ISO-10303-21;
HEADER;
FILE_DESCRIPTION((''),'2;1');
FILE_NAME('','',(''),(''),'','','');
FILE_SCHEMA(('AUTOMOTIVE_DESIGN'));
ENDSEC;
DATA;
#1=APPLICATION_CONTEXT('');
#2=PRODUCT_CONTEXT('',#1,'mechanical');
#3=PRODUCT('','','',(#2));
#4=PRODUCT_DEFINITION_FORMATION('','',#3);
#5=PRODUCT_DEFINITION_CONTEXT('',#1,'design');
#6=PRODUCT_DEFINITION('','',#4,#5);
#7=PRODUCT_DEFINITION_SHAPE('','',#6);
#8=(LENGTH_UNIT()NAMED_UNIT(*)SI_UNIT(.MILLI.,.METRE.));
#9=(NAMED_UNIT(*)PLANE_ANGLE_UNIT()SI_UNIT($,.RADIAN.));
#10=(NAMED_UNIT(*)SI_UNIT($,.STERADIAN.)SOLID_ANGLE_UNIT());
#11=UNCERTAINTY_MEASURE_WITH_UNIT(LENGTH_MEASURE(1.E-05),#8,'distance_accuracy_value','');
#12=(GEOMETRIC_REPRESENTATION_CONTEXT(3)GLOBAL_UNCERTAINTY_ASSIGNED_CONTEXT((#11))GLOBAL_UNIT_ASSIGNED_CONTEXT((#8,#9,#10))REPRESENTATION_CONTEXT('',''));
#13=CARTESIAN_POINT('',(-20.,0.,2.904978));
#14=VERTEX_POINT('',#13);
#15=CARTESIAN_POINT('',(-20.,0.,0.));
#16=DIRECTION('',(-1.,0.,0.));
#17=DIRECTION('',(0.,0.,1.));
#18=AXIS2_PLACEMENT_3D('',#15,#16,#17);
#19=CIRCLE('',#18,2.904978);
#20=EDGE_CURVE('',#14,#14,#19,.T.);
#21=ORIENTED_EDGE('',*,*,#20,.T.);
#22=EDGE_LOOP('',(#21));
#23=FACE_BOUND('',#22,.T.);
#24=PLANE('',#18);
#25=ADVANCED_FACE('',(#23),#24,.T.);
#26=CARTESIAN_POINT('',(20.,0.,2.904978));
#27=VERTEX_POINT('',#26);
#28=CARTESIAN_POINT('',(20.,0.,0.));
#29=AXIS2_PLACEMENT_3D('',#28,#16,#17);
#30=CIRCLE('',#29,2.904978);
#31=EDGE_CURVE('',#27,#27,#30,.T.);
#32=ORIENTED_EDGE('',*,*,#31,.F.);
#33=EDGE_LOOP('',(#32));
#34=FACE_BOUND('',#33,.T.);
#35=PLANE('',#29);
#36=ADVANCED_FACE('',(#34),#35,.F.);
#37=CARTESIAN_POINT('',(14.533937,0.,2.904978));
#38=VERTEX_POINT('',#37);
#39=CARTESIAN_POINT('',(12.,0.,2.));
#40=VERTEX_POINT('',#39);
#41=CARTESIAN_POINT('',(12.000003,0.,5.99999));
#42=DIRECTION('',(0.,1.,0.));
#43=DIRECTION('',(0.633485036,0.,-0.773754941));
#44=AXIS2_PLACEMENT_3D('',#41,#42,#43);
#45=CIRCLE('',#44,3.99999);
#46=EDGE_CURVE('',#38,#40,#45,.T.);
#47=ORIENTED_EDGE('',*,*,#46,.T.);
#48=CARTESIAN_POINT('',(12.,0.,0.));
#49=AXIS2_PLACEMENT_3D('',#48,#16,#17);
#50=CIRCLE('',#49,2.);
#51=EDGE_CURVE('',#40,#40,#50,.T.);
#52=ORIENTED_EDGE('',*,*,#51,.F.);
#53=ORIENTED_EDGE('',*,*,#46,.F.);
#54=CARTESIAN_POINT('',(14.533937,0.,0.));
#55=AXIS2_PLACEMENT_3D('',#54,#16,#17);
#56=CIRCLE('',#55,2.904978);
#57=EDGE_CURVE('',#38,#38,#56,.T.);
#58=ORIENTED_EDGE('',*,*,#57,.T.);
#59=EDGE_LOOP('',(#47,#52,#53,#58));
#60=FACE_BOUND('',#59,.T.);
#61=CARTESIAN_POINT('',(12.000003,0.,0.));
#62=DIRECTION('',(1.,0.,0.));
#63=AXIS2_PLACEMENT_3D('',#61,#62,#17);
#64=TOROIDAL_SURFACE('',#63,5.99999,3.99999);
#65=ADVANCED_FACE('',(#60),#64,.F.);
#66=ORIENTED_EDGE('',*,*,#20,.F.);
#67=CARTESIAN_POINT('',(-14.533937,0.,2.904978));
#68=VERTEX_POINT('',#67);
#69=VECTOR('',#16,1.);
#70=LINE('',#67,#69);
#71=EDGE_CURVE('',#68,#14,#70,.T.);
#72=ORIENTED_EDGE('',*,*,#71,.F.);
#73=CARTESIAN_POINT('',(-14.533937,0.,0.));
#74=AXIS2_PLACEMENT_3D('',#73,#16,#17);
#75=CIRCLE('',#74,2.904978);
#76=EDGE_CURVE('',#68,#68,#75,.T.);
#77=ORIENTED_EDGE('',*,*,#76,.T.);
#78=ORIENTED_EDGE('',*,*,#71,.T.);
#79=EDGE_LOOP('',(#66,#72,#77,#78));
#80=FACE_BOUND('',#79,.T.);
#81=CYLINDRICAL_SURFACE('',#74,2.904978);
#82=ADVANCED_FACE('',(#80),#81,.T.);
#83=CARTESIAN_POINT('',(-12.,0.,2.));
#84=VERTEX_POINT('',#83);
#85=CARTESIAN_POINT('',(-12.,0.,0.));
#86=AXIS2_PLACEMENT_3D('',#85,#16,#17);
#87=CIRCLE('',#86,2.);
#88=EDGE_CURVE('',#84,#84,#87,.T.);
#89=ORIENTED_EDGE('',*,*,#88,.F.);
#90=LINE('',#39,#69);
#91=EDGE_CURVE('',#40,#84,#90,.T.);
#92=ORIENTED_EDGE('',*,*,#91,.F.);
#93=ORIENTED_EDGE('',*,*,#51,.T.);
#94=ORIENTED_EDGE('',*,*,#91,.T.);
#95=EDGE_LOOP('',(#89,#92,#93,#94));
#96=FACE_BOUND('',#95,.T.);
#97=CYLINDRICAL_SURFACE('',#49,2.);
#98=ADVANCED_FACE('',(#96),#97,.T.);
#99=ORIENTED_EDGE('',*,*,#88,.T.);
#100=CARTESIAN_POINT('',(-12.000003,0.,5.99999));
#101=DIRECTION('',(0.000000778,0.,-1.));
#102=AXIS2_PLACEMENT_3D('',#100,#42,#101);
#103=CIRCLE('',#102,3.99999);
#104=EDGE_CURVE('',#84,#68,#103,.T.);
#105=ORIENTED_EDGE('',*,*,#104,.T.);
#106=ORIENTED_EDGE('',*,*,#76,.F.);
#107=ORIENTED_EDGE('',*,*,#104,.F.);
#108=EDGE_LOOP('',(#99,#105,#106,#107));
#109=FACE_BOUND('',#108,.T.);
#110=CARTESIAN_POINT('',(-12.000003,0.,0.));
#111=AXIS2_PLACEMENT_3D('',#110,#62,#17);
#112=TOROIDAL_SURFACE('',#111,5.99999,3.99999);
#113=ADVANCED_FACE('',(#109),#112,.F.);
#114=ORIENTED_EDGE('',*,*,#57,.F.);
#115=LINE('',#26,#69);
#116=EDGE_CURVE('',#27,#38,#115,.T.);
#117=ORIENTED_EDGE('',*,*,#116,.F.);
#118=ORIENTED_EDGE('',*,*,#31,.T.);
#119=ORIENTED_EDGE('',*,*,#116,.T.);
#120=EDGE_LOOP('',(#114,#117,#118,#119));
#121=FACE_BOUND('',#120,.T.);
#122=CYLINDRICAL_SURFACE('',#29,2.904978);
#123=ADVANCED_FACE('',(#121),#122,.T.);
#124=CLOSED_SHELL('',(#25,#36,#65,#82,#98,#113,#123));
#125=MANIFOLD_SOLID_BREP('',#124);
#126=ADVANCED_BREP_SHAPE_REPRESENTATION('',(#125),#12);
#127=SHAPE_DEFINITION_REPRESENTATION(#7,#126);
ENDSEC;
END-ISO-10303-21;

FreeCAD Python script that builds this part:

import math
import FreeCAD as App
import Part
import Sketcher

V = App.Vector

doc = App.newDocument("Part")
params = doc.addObject("Spreadsheet::Sheet", "Params")
for row, (alias, value) in enumerate([
    ("sketch1_width", "24 mm"),
    ("sketch1_width2", "40 mm"),
    ("revolution_angle", "360 deg"),
], start=1):
    params.set(f"A{row}", alias)
    params.set(f"B{row}", "=" + value)
    params.setAlias(f"B{row}", alias)

body = doc.addObject("PartDesign::Body", "Body")

sketch1 = doc.addObject("Sketcher::SketchObject", "Sketch")
body.addObject(sketch1)
sketch1.AttachmentSupport = (doc.XZ_Plane, [""])
sketch1.MapMode = "FlatFace"
sketch1.addGeometry(Part.LineSegment(V(12, 2, 0), V(-12, 2, 0)), False)
sketch1.addGeometry(Part.ArcOfCircle(Part.Circle(V(-12.000003, 5.99999, 0), V(0, 0, 1), 3.99999), math.radians(-129.307713), math.radians(-89.999955)), False)
sketch1.addGeometry(Part.LineSegment(V(-14.533937, 2.904978, 0), V(-20, 2.904978, 0)), False)
sketch1.addGeometry(Part.LineSegment(V(-20, 2.904978, 0), V(-20, 0, 0)), False)
sketch1.addGeometry(Part.LineSegment(V(-20, 0, 0), V(20, 0, 0)), False)
sketch1.addGeometry(Part.LineSegment(V(20, 0, 0), V(20, 2.904978, 0)), False)
sketch1.addGeometry(Part.LineSegment(V(20, 2.904978, 0), V(14.533937, 2.904978, 0)), False)
sketch1.addGeometry(Part.ArcOfCircle(Part.Circle(V(12.000003, 5.99999, 0), V(0, 0, 1), 3.99999), math.radians(-90.000045), math.radians(-50.692287)), False)
sketch1.addConstraint(Sketcher.Constraint("Tangent", 0, 2, 1, 2))
sketch1.addConstraint(Sketcher.Constraint("Coincident", 1, 1, 2, 1))
sketch1.addConstraint(Sketcher.Constraint("Coincident", 2, 2, 3, 1))
sketch1.addConstraint(Sketcher.Constraint("Coincident", 3, 2, 4, 1))
sketch1.addConstraint(Sketcher.Constraint("Coincident", 4, 2, 5, 1))
sketch1.addConstraint(Sketcher.Constraint("Coincident", 5, 2, 6, 1))
sketch1.addConstraint(Sketcher.Constraint("Coincident", 6, 2, 7, 2))
sketch1.addConstraint(Sketcher.Constraint("Tangent", 7, 1, 0, 1))
sketch1.addConstraint(Sketcher.Constraint("Horizontal", 0))
sketch1.addConstraint(Sketcher.Constraint("Horizontal", 2))
sketch1.addConstraint(Sketcher.Constraint("Vertical", 3))
sketch1.addConstraint(Sketcher.Constraint("Horizontal", 4))
sketch1.addConstraint(Sketcher.Constraint("Vertical", 5))
sketch1.addConstraint(Sketcher.Constraint("Horizontal", 6))
sketch1.addConstraint(Sketcher.Constraint("Equal", 1, 7))
sketch1.addConstraint(Sketcher.Constraint("Symmetric", 3, 2, 4, 2, -1, 1))
sketch1.addConstraint(Sketcher.Constraint("Symmetric", 1, 1, 6, 2, -2))
sketch1.addConstraint(Sketcher.Constraint("DistanceX", 0, 2, 0, 1, 24.0))
sketch1.addConstraint(Sketcher.Constraint("DistanceX", 4, 1, 4, 2, 40.0))
sketch1.addConstraint(Sketcher.Constraint("DistanceY", -1, 1, 0, 2, 2.0))
sketch1.addConstraint(Sketcher.Constraint("Radius", 1, 3.99999))
sketch1.addConstraint(Sketcher.Constraint("DistanceX", 2, 2, 2, 1, 5.466063))
sketch1.setExpression("Constraints[17]", "Params.sketch1_width")
sketch1.setExpression("Constraints[18]", "Params.sketch1_width2")
revolution = doc.addObject("PartDesign::Revolution", "Revolution")
body.addObject(revolution)
revolution.Profile = sketch1
revolution.ReferenceAxis = (sketch1, ["H_Axis"])
revolution.setExpression("Angle", "Params.revolution_angle")

doc.recompute()
